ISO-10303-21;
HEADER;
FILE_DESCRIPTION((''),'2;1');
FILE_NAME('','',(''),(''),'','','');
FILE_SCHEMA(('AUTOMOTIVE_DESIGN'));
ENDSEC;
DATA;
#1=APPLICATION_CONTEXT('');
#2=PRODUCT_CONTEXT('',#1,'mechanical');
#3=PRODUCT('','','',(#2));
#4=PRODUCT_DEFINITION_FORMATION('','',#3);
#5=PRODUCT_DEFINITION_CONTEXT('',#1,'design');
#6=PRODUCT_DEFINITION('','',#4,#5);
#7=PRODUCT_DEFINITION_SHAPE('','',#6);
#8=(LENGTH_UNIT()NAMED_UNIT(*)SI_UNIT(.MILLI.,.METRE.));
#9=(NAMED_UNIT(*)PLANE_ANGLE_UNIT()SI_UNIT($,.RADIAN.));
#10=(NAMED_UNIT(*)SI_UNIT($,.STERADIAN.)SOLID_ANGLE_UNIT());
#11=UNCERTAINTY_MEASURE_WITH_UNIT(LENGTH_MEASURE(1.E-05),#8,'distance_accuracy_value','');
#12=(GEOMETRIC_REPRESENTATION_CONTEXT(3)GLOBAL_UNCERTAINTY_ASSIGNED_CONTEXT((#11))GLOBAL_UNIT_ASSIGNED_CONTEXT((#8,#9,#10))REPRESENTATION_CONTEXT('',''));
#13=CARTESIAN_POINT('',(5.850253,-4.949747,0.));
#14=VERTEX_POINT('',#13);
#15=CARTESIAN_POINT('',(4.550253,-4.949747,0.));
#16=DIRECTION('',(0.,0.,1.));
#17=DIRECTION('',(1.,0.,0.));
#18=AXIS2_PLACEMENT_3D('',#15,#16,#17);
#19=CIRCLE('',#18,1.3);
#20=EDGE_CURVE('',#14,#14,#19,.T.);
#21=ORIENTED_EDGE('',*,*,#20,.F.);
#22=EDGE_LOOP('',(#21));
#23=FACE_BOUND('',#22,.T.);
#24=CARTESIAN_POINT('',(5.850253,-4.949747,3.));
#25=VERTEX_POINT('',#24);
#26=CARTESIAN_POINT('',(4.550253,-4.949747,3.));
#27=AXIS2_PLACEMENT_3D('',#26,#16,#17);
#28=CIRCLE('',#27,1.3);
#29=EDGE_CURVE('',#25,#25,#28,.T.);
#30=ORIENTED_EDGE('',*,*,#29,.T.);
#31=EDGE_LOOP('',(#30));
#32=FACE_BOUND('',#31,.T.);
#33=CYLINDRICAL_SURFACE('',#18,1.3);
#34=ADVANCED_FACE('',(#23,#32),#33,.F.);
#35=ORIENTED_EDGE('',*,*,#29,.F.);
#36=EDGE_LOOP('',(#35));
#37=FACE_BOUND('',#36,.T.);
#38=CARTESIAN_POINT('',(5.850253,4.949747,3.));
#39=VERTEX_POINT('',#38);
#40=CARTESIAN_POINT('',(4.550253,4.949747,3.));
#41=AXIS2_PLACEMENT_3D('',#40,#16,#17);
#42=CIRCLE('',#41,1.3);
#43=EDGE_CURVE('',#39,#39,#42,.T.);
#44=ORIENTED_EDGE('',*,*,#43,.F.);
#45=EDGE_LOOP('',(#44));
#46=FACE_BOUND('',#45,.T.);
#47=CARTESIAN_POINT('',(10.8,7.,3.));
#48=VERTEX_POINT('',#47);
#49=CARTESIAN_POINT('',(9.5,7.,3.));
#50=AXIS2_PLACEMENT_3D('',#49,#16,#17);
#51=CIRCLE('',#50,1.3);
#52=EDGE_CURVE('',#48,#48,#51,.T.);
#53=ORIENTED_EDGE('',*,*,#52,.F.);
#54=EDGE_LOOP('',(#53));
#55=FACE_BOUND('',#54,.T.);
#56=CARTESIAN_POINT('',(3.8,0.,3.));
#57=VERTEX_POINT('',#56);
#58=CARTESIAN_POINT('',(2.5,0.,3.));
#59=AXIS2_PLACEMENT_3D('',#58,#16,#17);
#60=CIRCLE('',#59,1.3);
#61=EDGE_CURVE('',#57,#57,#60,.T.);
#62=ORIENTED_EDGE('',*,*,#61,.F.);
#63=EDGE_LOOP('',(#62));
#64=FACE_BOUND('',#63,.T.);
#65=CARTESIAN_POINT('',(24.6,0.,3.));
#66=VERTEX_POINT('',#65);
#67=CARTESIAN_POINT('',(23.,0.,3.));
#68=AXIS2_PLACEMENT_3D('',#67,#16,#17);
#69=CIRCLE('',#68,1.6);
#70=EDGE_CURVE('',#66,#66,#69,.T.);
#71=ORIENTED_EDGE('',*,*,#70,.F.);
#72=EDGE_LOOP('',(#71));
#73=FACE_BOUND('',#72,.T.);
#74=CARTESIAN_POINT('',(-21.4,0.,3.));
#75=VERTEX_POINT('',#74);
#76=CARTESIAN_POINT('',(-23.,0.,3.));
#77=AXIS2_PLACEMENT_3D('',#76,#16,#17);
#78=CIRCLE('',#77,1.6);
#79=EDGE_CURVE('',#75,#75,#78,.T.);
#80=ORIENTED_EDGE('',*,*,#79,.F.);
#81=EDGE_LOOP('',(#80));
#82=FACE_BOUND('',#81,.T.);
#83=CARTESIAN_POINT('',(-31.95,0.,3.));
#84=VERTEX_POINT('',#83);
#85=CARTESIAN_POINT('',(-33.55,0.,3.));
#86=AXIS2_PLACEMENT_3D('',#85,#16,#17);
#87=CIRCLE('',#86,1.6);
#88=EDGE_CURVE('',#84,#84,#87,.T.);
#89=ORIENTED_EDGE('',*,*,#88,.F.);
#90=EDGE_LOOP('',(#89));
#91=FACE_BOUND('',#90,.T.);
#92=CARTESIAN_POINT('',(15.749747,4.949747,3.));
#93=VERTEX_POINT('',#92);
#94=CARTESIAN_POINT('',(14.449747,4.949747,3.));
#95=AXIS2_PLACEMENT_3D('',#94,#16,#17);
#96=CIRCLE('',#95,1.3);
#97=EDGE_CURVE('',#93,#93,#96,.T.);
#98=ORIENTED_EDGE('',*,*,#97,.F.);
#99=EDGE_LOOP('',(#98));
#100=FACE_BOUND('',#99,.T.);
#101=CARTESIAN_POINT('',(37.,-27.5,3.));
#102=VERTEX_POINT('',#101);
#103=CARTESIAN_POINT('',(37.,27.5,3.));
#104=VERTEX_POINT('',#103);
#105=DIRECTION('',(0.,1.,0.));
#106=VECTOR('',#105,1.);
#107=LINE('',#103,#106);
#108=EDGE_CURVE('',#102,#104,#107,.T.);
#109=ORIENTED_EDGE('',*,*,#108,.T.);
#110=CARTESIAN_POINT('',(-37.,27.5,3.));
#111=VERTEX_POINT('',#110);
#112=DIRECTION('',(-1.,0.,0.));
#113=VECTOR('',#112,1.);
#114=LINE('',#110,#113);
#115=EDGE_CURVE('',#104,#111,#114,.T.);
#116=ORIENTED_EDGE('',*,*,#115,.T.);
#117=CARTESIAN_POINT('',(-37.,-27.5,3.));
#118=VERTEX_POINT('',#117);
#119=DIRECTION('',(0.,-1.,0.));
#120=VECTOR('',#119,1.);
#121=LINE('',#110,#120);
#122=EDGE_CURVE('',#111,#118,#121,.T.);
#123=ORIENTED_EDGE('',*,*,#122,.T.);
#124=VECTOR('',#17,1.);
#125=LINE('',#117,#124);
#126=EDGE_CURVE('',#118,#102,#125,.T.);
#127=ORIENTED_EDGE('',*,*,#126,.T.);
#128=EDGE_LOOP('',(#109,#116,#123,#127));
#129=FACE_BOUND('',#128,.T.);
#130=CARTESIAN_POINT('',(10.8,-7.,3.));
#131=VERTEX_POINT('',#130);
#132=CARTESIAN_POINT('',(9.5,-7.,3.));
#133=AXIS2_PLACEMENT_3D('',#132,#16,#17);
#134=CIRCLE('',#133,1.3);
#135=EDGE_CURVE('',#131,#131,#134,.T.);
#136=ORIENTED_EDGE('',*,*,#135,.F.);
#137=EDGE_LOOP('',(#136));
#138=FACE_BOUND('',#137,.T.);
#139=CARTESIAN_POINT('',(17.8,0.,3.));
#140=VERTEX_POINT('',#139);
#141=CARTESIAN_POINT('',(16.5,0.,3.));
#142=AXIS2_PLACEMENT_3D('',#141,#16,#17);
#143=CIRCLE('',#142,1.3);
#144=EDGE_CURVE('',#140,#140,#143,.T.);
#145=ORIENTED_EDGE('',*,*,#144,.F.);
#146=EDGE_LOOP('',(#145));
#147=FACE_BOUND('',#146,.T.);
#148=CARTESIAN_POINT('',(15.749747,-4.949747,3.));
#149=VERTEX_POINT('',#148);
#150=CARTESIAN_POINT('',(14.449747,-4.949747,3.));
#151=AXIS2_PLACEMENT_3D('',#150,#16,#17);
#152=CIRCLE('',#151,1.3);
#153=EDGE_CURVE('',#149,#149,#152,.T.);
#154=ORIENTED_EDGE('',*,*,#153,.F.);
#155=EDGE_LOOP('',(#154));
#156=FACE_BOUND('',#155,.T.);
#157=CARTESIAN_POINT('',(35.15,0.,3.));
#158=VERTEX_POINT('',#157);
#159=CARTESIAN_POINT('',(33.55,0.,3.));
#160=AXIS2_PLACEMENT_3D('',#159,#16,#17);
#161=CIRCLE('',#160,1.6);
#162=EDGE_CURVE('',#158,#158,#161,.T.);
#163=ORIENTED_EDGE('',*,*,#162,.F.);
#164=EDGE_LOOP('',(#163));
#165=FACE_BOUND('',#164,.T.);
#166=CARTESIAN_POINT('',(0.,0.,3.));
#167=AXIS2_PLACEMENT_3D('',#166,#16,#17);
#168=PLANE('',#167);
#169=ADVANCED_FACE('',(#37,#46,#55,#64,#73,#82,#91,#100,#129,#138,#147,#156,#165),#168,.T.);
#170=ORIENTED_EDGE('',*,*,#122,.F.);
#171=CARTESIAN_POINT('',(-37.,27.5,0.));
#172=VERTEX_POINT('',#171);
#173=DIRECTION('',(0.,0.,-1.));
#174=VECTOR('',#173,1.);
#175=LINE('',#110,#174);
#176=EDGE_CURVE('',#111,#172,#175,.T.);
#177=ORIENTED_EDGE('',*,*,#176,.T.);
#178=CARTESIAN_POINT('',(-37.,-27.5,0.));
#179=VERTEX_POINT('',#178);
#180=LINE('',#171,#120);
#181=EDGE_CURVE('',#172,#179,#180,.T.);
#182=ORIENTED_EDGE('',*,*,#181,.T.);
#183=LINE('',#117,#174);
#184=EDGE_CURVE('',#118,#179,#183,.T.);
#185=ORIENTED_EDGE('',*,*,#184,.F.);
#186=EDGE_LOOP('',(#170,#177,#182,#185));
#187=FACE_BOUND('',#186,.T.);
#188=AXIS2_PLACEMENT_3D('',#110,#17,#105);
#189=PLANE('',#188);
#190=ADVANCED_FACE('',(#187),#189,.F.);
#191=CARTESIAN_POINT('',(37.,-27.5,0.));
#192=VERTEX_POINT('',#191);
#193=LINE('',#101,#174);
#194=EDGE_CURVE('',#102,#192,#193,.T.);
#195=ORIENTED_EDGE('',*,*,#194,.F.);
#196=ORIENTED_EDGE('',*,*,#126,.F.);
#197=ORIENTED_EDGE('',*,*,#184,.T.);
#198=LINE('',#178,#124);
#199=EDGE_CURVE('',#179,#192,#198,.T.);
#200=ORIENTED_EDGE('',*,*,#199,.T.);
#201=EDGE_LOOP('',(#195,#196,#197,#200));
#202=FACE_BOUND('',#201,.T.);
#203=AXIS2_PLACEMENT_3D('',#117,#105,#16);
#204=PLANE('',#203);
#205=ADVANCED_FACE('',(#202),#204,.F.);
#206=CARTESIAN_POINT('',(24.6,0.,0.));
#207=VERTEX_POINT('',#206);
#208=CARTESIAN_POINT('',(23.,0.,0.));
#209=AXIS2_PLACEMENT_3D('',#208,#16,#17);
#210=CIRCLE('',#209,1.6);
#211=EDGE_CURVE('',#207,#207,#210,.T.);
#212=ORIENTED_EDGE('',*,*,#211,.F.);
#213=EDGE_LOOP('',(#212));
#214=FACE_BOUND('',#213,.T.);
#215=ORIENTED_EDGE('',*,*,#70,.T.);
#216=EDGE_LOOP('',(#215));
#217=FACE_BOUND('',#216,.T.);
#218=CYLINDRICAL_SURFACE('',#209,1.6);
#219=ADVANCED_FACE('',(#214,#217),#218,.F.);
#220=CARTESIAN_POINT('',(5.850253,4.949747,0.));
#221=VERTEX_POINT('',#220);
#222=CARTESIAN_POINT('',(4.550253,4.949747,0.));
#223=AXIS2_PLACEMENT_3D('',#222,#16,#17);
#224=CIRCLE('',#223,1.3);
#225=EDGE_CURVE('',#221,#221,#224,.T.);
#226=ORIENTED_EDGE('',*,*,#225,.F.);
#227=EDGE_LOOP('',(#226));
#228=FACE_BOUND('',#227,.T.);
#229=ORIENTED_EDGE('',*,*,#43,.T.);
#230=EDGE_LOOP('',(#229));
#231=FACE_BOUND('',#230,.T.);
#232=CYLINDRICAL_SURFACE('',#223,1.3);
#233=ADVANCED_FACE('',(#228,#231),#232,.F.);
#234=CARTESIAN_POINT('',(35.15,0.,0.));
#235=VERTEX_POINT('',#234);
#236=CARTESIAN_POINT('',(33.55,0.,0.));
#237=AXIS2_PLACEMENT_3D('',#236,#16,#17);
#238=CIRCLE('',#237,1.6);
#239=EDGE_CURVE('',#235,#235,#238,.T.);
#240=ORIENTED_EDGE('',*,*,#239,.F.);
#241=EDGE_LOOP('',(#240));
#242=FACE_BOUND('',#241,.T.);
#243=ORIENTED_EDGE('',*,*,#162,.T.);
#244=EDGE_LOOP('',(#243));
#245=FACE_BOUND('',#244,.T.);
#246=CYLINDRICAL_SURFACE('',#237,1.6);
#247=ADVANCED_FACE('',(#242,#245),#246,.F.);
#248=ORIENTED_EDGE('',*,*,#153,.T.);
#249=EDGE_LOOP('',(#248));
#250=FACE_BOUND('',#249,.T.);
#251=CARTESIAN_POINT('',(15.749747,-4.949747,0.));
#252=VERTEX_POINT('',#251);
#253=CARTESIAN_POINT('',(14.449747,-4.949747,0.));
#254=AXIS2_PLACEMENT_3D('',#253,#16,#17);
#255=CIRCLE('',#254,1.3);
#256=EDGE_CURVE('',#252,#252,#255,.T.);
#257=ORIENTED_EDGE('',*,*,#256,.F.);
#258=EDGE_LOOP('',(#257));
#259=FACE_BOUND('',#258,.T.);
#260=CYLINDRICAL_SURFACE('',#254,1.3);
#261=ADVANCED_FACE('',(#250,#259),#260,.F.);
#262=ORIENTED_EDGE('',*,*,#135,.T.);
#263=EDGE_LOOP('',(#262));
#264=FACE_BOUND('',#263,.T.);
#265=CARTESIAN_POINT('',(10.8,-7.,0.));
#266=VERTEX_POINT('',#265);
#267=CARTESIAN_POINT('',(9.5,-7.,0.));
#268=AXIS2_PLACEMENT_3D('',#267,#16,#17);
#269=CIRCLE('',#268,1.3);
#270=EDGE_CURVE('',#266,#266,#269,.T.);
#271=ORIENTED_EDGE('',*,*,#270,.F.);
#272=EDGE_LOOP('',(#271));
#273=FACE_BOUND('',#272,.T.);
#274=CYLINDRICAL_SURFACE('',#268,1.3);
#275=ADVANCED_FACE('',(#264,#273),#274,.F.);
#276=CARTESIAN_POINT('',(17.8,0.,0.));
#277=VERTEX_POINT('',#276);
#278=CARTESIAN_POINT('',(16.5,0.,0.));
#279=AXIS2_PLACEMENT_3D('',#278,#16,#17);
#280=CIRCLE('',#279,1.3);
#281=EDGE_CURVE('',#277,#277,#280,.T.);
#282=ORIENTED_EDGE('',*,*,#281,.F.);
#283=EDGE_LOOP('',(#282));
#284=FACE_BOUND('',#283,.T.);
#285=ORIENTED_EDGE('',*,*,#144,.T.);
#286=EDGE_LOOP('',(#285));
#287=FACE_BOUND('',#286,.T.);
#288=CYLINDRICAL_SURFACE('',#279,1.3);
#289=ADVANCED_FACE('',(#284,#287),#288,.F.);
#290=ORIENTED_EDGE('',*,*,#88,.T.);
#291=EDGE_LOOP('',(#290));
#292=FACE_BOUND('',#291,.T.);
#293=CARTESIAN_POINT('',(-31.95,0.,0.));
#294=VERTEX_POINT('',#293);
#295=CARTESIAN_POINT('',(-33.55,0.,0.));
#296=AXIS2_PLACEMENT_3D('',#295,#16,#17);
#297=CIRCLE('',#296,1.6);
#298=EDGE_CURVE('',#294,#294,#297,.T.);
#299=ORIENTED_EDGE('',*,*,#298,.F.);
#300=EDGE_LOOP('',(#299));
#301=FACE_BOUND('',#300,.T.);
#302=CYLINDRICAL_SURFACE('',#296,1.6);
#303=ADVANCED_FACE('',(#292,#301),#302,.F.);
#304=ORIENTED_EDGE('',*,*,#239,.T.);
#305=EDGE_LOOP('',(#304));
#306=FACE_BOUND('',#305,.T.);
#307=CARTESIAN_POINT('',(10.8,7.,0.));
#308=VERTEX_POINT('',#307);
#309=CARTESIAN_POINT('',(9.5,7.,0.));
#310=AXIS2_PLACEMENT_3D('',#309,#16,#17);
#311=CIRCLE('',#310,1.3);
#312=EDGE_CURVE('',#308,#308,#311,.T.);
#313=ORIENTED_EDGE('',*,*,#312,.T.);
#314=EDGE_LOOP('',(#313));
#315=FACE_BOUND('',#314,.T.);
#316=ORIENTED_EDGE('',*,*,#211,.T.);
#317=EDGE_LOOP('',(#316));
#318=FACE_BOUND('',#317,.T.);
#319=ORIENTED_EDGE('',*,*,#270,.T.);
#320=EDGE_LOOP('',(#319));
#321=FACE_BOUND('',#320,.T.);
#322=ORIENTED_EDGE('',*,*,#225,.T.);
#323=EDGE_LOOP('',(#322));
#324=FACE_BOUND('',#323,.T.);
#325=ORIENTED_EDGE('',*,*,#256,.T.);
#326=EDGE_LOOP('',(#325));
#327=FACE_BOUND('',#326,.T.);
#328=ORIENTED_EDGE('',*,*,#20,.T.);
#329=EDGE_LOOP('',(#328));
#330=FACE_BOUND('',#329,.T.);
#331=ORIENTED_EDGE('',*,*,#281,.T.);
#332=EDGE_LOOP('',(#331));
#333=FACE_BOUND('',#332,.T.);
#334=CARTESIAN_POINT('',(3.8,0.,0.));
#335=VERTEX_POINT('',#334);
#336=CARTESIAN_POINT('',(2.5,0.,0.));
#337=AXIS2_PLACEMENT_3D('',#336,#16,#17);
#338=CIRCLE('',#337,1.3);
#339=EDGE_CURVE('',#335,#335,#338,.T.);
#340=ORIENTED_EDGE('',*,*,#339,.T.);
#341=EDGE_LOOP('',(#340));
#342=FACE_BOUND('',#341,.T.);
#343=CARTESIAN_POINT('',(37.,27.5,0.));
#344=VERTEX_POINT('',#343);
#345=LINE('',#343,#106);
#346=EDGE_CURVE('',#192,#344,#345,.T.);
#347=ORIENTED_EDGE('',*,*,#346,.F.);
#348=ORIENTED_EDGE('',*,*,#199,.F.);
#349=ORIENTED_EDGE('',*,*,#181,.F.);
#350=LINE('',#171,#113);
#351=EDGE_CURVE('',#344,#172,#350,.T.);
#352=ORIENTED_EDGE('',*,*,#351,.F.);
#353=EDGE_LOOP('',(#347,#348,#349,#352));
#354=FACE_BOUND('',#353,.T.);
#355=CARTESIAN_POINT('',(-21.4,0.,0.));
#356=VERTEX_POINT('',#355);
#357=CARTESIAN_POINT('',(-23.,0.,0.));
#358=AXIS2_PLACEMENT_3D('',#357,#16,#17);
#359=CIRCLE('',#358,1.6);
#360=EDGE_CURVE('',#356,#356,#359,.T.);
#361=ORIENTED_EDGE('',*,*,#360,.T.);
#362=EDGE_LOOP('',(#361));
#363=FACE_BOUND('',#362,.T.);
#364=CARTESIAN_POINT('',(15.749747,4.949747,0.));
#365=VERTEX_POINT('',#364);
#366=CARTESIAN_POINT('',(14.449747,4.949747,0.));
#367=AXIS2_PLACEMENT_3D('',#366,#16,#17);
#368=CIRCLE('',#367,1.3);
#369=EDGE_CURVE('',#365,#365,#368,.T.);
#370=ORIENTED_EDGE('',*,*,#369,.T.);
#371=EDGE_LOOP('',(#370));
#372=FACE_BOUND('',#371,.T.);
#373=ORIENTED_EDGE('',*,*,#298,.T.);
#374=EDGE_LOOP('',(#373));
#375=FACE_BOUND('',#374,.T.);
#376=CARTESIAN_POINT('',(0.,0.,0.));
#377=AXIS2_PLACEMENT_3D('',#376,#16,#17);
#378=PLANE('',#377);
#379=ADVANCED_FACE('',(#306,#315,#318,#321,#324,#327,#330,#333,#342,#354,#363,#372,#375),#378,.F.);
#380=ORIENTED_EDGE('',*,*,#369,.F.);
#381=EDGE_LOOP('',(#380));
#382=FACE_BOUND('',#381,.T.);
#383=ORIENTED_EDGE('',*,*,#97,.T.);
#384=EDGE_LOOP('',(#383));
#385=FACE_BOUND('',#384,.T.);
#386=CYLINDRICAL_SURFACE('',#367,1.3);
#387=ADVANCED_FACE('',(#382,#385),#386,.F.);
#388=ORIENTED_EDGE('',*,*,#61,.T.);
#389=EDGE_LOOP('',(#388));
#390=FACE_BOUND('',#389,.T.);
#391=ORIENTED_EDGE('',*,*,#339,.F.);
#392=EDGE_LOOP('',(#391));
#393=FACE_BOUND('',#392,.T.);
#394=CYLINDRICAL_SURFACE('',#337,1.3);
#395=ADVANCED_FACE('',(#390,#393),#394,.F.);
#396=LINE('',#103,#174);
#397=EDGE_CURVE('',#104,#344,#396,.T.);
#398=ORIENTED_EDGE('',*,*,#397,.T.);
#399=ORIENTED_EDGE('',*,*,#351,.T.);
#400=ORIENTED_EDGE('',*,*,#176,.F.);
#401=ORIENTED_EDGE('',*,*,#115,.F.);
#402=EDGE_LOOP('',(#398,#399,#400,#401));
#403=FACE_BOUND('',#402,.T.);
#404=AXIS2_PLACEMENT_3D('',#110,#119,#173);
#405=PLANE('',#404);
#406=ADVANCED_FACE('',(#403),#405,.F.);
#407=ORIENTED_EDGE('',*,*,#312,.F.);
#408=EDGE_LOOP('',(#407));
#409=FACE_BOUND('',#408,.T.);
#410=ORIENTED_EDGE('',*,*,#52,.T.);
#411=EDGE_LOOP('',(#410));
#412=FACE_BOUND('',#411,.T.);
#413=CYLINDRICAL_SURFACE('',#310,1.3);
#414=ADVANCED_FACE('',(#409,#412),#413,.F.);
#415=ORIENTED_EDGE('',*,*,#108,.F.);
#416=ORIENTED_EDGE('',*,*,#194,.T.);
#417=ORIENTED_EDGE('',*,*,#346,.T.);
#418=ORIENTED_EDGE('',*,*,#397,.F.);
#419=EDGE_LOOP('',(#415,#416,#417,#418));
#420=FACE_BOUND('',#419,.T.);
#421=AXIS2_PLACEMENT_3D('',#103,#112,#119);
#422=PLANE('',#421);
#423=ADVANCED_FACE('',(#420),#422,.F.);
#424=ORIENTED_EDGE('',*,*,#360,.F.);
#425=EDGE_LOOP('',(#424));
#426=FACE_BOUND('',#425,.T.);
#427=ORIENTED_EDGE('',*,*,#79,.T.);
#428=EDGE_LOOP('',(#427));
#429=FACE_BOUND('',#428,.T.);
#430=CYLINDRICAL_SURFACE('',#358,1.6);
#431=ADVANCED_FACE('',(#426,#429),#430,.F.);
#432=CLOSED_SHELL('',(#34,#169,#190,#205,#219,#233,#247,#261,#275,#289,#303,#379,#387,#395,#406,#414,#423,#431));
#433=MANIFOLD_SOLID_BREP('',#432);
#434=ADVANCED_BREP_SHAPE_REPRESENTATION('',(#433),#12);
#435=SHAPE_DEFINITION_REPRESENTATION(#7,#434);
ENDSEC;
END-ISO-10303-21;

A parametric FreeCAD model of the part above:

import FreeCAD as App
import Part
import Sketcher
from FreeCAD import Vector


def add_polygon(sketch, points):
    """Adds a closed chain of lines whose ends are joined by coincident constraints."""
    first, n = sketch.GeometryCount, len(points)
    for a, b in zip(points, points[1:] + points[:1]):
        sketch.addGeometry(Part.LineSegment(App.Vector(*a, 0), App.Vector(*b, 0)), False)
    for i in range(n):
        sketch.addConstraint(Sketcher.Constraint("Coincident", first + i, 2, first + (i + 1) % n, 1))

doc = App.newDocument("Part")
body = doc.addObject("PartDesign::Body", "Body")

# Sketch on XY plane
sketch1 = body.newObject("Sketcher::SketchObject", "Sketch")
sketch1.AttachmentSupport = (doc.getObject("XY_Plane"), [""])
sketch1.MapMode = "FlatFace"
add_polygon(sketch1, [(-37, 27.5), (-37, -27.5), (37, -27.5), (37, 27.5)])  # lines 0-3
sketch1.addConstraint(Sketcher.Constraint("Vertical", 0))
sketch1.addConstraint(Sketcher.Constraint("Horizontal", 1))
sketch1.addConstraint(Sketcher.Constraint("Vertical", 2))
sketch1.addConstraint(Sketcher.Constraint("Horizontal", 3))
sketch1.addConstraint(Sketcher.Constraint("Symmetric", 0, 2, 2, 2, -1, 1))
sketch1.addConstraint(Sketcher.Constraint("DistanceX", 1, 1, 1, 2, 74.0))
sketch1.addConstraint(Sketcher.Constraint("DistanceY", 0, 2, 0, 1, 55.0))
pad1 = body.newObject("PartDesign::Pad", "Pad")
pad1.Profile = sketch1
pad1.Length = 3

# Sketch on XY plane
sketch2 = body.newObject("Sketcher::SketchObject", "Sketch001")
sketch2.AttachmentSupport = (doc.getObject("XY_Plane"), [""])
sketch2.MapMode = "FlatFace"
sketch2.AttachmentOffset = App.Placement(Vector(0, 0, 3), App.Rotation())
sketch2.addGeometry(Part.Circle(Vector(-33.55, 0, 0), Vector(0, 0, 1), 1.6), False)
sketch2.addGeometry(Part.Circle(Vector(33.55, 0, 0), Vector(0, 0, 1), 1.6), False)
sketch2.addGeometry(Part.Circle(Vector(-23, 0, 0), Vector(0, 0, 1), 1.6), False)
sketch2.addGeometry(Part.Circle(Vector(23, 0, 0), Vector(0, 0, 1), 1.6), False)
sketch2.addConstraint(Sketcher.Constraint("Equal", 0, 1))
sketch2.addConstraint(Sketcher.Constraint("Equal", 1, 2))
sketch2.addConstraint(Sketcher.Constraint("Equal", 2, 3))
sketch2.addConstraint(Sketcher.Constraint("Symmetric", 0, 3, 1, 3, -1, 1))
sketch2.addConstraint(Sketcher.Constraint("Symmetric", 2, 3, 3, 3, -1, 1))
sketch2.addConstraint(Sketcher.Constraint("PointOnObject", 0, 3, -1))
sketch2.addConstraint(Sketcher.Constraint("PointOnObject", 2, 3, -1))
sketch2.addConstraint(Sketcher.Constraint("Diameter", 0, 3.2))
sketch2.addConstraint(Sketcher.Constraint("DistanceX", 2, 3, -1, 1, 23.0))
sketch2.addConstraint(Sketcher.Constraint("DistanceX", 0, 3, 1, 3, 67.1))
pocket1 = body.newObject("PartDesign::Pocket", "Pocket")
pocket1.Profile = sketch2
pocket1.Type = "ThroughAll"

# Sketch on XY plane
sketch3 = body.newObject("Sketcher::SketchObject", "Sketch002")
sketch3.AttachmentSupport = (doc.getObject("XY_Plane"), [""])
sketch3.MapMode = "FlatFace"
sketch3.AttachmentOffset = App.Placement(Vector(0, 0, 3), App.Rotation())
sketch3.addGeometry(Part.Circle(Vector(16.5, 0, 0), Vector(0, 0, 1), 1.3), False)
sketch3.addGeometry(Part.Circle(Vector(14.449747, -4.949747, 0), Vector(0, 0, 1), 1.3), False)
sketch3.addGeometry(Part.Circle(Vector(9.5, -7, 0), Vector(0, 0, 1), 1.3), False)
sketch3.addGeometry(Part.Circle(Vector(4.550253, -4.949747, 0), Vector(0, 0, 1), 1.3), False)
sketch3.addGeometry(Part.Circle(Vector(2.5, 0, 0), Vector(0, 0, 1), 1.3), False)
sketch3.addGeometry(Part.Circle(Vector(4.550253, 4.949747, 0), Vector(0, 0, 1), 1.3), False)
sketch3.addGeometry(Part.Circle(Vector(9.5, 7, 0), Vector(0, 0, 1), 1.3), False)
sketch3.addGeometry(Part.Circle(Vector(14.449747, 4.949747, 0), Vector(0, 0, 1), 1.3), False)
sketch3.addConstraint(Sketcher.Constraint("Equal", 0, 1))
sketch3.addConstraint(Sketcher.Constraint("Equal", 1, 2))
sketch3.addConstraint(Sketcher.Constraint("Equal", 2, 3))
sketch3.addConstraint(Sketcher.Constraint("Equal", 3, 4))
sketch3.addConstraint(Sketcher.Constraint("Equal", 4, 5))
sketch3.addConstraint(Sketcher.Constraint("Equal", 5, 6))
sketch3.addConstraint(Sketcher.Constraint("Equal", 6, 7))
sketch3.addConstraint(Sketcher.Constraint("Symmetric", 3, 3, 5, 3, -1))
sketch3.addConstraint(Sketcher.Constraint("Symmetric", 2, 3, 6, 3, -1))
sketch3.addConstraint(Sketcher.Constraint("Symmetric", 1, 3, 7, 3, -1))
sketch3.addConstraint(Sketcher.Constraint("PointOnObject", 0, 3, -1))
sketch3.addConstraint(Sketcher.Constraint("PointOnObject", 4, 3, -1))
sketch3.addConstraint(Sketcher.Constraint("Horizontal", 1, 3, 3, 3))
sketch3.addConstraint(Sketcher.Constraint("Diameter", 0, 2.6))
sketch3.addConstraint(Sketcher.Constraint("DistanceY", 2, 3, -1, 1, 7.0))
sketch3.addConstraint(Sketcher.Constraint("DistanceX", 2, 3, 0, 3, 7.0))
sketch3.addConstraint(Sketcher.Constraint("DistanceX", 4, 3, 2, 3, 7.0))
sketch3.addConstraint(Sketcher.Constraint("DistanceX", -1, 1, 0, 3, 16.5))
sketch3.addConstraint(Sketcher.Constraint("DistanceX", -1, 1, 1, 3, 14.449747))
sketch3.addConstraint(Sketcher.Constraint("DistanceY", 1, 3, -1, 1, 4.949747))
sketch3.addConstraint(Sketcher.Constraint("DistanceX", -1, 1, 3, 3, 4.550253))
pocket2 = body.newObject("PartDesign::Pocket", "Pocket001")
pocket2.Profile = sketch3
pocket2.Type = "ThroughAll"

doc.recompute()
